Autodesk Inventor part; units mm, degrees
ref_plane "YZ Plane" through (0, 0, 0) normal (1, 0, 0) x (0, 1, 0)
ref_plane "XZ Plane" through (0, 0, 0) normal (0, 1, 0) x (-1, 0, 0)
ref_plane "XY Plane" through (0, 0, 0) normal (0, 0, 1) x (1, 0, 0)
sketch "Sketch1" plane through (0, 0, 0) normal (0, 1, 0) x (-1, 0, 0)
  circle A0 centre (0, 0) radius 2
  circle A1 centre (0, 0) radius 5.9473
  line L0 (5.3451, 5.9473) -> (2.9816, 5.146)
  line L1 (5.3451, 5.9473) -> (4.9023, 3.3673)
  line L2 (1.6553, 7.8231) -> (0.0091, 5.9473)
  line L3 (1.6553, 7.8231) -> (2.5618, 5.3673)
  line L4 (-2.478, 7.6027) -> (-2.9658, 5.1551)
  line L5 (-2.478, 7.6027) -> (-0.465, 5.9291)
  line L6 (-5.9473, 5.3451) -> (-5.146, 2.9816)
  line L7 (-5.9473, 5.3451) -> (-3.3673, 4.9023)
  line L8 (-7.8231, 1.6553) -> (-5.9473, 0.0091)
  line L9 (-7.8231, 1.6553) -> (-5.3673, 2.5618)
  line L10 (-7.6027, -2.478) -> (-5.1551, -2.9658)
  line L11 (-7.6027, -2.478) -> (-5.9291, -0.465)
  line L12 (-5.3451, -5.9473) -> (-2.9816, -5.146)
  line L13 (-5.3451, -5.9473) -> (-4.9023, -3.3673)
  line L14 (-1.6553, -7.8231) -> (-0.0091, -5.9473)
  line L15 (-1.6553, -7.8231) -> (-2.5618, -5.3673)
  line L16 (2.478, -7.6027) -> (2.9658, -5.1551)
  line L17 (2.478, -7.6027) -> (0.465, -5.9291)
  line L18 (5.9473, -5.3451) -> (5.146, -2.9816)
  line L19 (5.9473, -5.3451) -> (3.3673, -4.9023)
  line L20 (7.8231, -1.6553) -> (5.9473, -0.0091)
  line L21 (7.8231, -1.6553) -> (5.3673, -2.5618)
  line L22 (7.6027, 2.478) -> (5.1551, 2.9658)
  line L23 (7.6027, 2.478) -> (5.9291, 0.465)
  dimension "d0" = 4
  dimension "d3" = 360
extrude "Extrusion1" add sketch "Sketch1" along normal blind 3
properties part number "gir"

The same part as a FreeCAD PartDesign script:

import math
import FreeCAD as App
import Part
import Sketcher
from FreeCAD import Vector
Q = App.Units.Quantity

doc = App.newDocument("Part")
body = doc.addObject("PartDesign::Body", "Body")

sketch1 = body.newObject("Sketcher::SketchObject", "Sketch")
sketch1.AttachmentSupport = (doc.getObject("XZ_Plane"), [""])
sketch1.MapMode = "FlatFace"
sketch1.addGeometry([
    Part.ArcOfCircle(Part.Circle(Vector(0, 0, 0), Vector(0, 0, 1), 5.95), math.radians(175.52), math.radians(180.09)),
    Part.LineSegment(Vector(-5.93, 0.47, 0), Vector(-7.6, 2.48, 0)),
    Part.LineSegment(Vector(-7.6, 2.48, 0), Vector(-5.16, 2.97, 0)),
    Part.ArcOfCircle(Part.Circle(Vector(0, 0, 0), Vector(0, 0, 1), 5.95), math.radians(145.52), math.radians(150.09)),
    Part.LineSegment(Vector(-4.9, 3.37, 0), Vector(-5.35, 5.95, 0)),
    Part.LineSegment(Vector(-5.35, 5.95, 0), Vector(-2.98, 5.15, 0)),
    Part.ArcOfCircle(Part.Circle(Vector(0, 0, 0), Vector(0, 0, 1), 5.95), math.radians(115.52), math.radians(120.09)),
    Part.LineSegment(Vector(-2.56, 5.37, 0), Vector(-1.66, 7.82, 0)),
    Part.LineSegment(Vector(-1.66, 7.82, 0), Vector(-0.01, 5.95, 0)),
    Part.ArcOfCircle(Part.Circle(Vector(0, 0, 0), Vector(0, 0, 1), 5.95), math.radians(85.52), math.radians(90.09)),
    Part.LineSegment(Vector(0.47, 5.93, 0), Vector(2.48, 7.6, 0)),
    Part.LineSegment(Vector(2.48, 7.6, 0), Vector(2.97, 5.16, 0)),
    Part.ArcOfCircle(Part.Circle(Vector(0, 0, 0), Vector(0, 0, 1), 5.95), math.radians(55.52), math.radians(60.09)),
    Part.LineSegment(Vector(3.37, 4.9, 0), Vector(5.95, 5.35, 0)),
    Part.LineSegment(Vector(5.95, 5.35, 0), Vector(5.15, 2.98, 0)),
    Part.ArcOfCircle(Part.Circle(Vector(0, 0, 0), Vector(0, 0, 1), 5.95), math.radians(25.52), math.radians(30.09)),
    Part.LineSegment(Vector(5.37, 2.56, 0), Vector(7.82, 1.66, 0)),
    Part.LineSegment(Vector(7.82, 1.66, 0), Vector(5.95, 0.01, 0)),
    Part.ArcOfCircle(Part.Circle(Vector(0, 0, 0), Vector(0, 0, 1), 5.95), math.radians(-4.48), math.radians(0.09)),
    Part.LineSegment(Vector(5.93, -0.47, 0), Vector(7.6, -2.48, 0)),
    Part.LineSegment(Vector(7.6, -2.48, 0), Vector(5.16, -2.97, 0)),
    Part.ArcOfCircle(Part.Circle(Vector(0, 0, 0), Vector(0, 0, 1), 5.95), math.radians(-34.48), math.radians(-29.91)),
    Part.LineSegment(Vector(4.9, -3.37, 0), Vector(5.35, -5.95, 0)),
    Part.LineSegment(Vector(5.35, -5.95, 0), Vector(2.98, -5.15, 0)),
    Part.ArcOfCircle(Part.Circle(Vector(0, 0, 0), Vector(0, 0, 1), 5.95), math.radians(-64.48), math.radians(-59.91)),
    Part.LineSegment(Vector(2.56, -5.37, 0), Vector(1.66, -7.82, 0)),
    Part.LineSegment(Vector(1.66, -7.82, 0), Vector(0.01, -5.95, 0)),
    Part.ArcOfCircle(Part.Circle(Vector(0, 0, 0), Vector(0, 0, 1), 5.95), math.radians(-94.48), math.radians(-89.91)),
    Part.LineSegment(Vector(-0.47, -5.93, 0), Vector(-2.48, -7.6, 0)),
    Part.LineSegment(Vector(-2.48, -7.6, 0), Vector(-2.97, -5.16, 0)),
    Part.ArcOfCircle(Part.Circle(Vector(0, 0, 0), Vector(0, 0, 1), 5.95), math.radians(-124.48), math.radians(-119.91)),
    Part.LineSegment(Vector(-3.37, -4.9, 0), Vector(-5.95, -5.35, 0)),
    Part.LineSegment(Vector(-5.95, -5.35, 0), Vector(-5.15, -2.98, 0)),
    Part.ArcOfCircle(Part.Circle(Vector(0, 0, 0), Vector(0, 0, 1), 5.95), math.radians(-154.48), math.radians(-149.91)),
    Part.LineSegment(Vector(-5.37, -2.56, 0), Vector(-7.82, -1.66, 0)),
    Part.LineSegment(Vector(-7.82, -1.66, 0), Vector(-5.95, -0.01, 0)),
    Part.Circle(Vector(0, 0, 0), Vector(0, 0, 1), 2),
], False)
sketch1.addConstraint([
    Sketcher.Constraint("Coincident", 0, 1, 1, 1),
    Sketcher.Constraint("Coincident", 1, 2, 2, 1),
    Sketcher.Constraint("Coincident", 2, 2, 3, 2),
    Sketcher.Constraint("Coincident", 3, 1, 4, 1),
    Sketcher.Constraint("Coincident", 4, 2, 5, 1),
    Sketcher.Constraint("Coincident", 5, 2, 6, 2),
    Sketcher.Constraint("Coincident", 6, 1, 7, 1),
    Sketcher.Constraint("Coincident", 7, 2, 8, 1),
    Sketcher.Constraint("Coincident", 8, 2, 9, 2),
    Sketcher.Constraint("Coincident", 9, 1, 10, 1),
    Sketcher.Constraint("Coincident", 10, 2, 11, 1),
    Sketcher.Constraint("Coincident", 11, 2, 12, 2),
    Sketcher.Constraint("Coincident", 12, 1, 13, 1),
    Sketcher.Constraint("Coincident", 13, 2, 14, 1),
    Sketcher.Constraint("Coincident", 14, 2, 15, 2),
    Sketcher.Constraint("Coincident", 15, 1, 16, 1),
    Sketcher.Constraint("Coincident", 16, 2, 17, 1),
    Sketcher.Constraint("Coincident", 17, 2, 18, 2),
    Sketcher.Constraint("Coincident", 18, 1, 19, 1),
    Sketcher.Constraint("Coincident", 19, 2, 20, 1),
    Sketcher.Constraint("Coincident", 20, 2, 21, 2),
    Sketcher.Constraint("Coincident", 21, 1, 22, 1),
    Sketcher.Constraint("Coincident", 22, 2, 23, 1),
    Sketcher.Constraint("Coincident", 23, 2, 24, 2),
    Sketcher.Constraint("Coincident", 24, 1, 25, 1),
    Sketcher.Constraint("Coincident", 25, 2, 26, 1),
    Sketcher.Constraint("Coincident", 26, 2, 27, 2),
    Sketcher.Constraint("Coincident", 27, 1, 28, 1),
    Sketcher.Constraint("Coincident", 28, 2, 29, 1),
    Sketcher.Constraint("Coincident", 29, 2, 30, 2),
    Sketcher.Constraint("Coincident", 30, 1, 31, 1),
    Sketcher.Constraint("Coincident", 31, 2, 32, 1),
    Sketcher.Constraint("Coincident", 32, 2, 33, 2),
    Sketcher.Constraint("Coincident", 33, 1, 34, 1),
    Sketcher.Constraint("Coincident", 34, 2, 35, 1),
    Sketcher.Constraint("Coincident", 35, 2, 0, 2),
    Sketcher.Constraint("Coincident", 0, 3, -1, 1),
    Sketcher.Constraint("Coincident", 3, 3, -1, 1),
    Sketcher.Constraint("Coincident", 6, 3, -1, 1),
    Sketcher.Constraint("Coincident", 9, 3, -1, 1),
    Sketcher.Constraint("Coincident", 12, 3, -1, 1),
    Sketcher.Constraint("Coincident", 15, 3, -1, 1),
    Sketcher.Constraint("Coincident", 18, 3, -1, 1),
    Sketcher.Constraint("Coincident", 21, 3, -1, 1),
    Sketcher.Constraint("Coincident", 24, 3, -1, 1),
    Sketcher.Constraint("Coincident", 27, 3, -1, 1),
    Sketcher.Constraint("Coincident", 30, 3, -1, 1),
    Sketcher.Constraint("Coincident", 33, 3, -1, 1),
    Sketcher.Constraint("Coincident", 36, 3, -1, 1),
    Sketcher.Constraint("Equal", 0, 3),
    Sketcher.Constraint("Equal", 3, 6),
    Sketcher.Constraint("Equal", 6, 9),
    Sketcher.Constraint("Equal", 9, 12),
    Sketcher.Constraint("Equal", 12, 15),
    Sketcher.Constraint("Equal", 15, 18),
    Sketcher.Constraint("Equal", 18, 21),
    Sketcher.Constraint("Equal", 21, 24),
    Sketcher.Constraint("Equal", 24, 27),
    Sketcher.Constraint("Equal", 27, 30),
    Sketcher.Constraint("Equal", 30, 33),
    Sketcher.Constraint("Symmetric", 1, 2, 19, 2, -1, 1),
    Sketcher.Constraint("Symmetric", 4, 2, 22, 2, -1, 1),
    Sketcher.Constraint("Symmetric", 7, 2, 25, 2, -1, 1),
    Sketcher.Constraint("Symmetric", 10, 2, 28, 2, -1, 1),
    Sketcher.Constraint("Symmetric", 13, 2, 31, 2, -1, 1),
    Sketcher.Constraint("Symmetric", 16, 2, 34, 2, -1, 1),
    Sketcher.Constraint("Perpendicular", 1, 10),
    Sketcher.Constraint("Perpendicular", 2, 11),
    Sketcher.Constraint("Perpendicular", 4, 13),
    Sketcher.Constraint("Perpendicular", 5, 14),
    Sketcher.Constraint("Perpendicular", 7, 16),
    Sketcher.Constraint("Perpendicular", 8, 17),
    Sketcher.Constraint("Perpendicular", 10, 19),
    Sketcher.Constraint("Perpendicular", 11, 20),
    Sketcher.Constraint("Perpendicular", 13, 22),
    Sketcher.Constraint("Perpendicular", 14, 23),
    Sketcher.Constraint("Perpendicular", 16, 25),
    Sketcher.Constraint("Perpendicular", 17, 26),
    Sketcher.Constraint("Perpendicular", 19, 28),
    Sketcher.Constraint("Perpendicular", 20, 29),
    Sketcher.Constraint("Perpendicular", 22, 31),
    Sketcher.Constraint("Perpendicular", 23, 32),
    Sketcher.Constraint("Perpendicular", 25, 34),
    Sketcher.Constraint("Perpendicular", 26, 35),
    Sketcher.Constraint("Horizontal", 4, 2, 8, 2),
    Sketcher.Constraint("Vertical", 13, 2, 17, 2),
    Sketcher.Constraint("Equal", 1, 4),
    Sketcher.Constraint("Equal", 2, 5),
    Sketcher.Constraint("Equal", 4, 7),
    Sketcher.Constraint("Equal", 5, 8),
    Sketcher.Constraint("Equal", 7, 10),
    Sketcher.Constraint("Equal", 8, 11),
    Sketcher.Constraint("Equal", 10, 13),
    Sketcher.Constraint("Equal", 13, 16),
    Sketcher.Constraint("Equal", 14, 17),
    Sketcher.Constraint("Diameter", 36, Q("4 mm")),
    Sketcher.Constraint("DistanceY", 3, 1, 6, 1, Q("2 mm")),
    Sketcher.Constraint("Angle", 1, Q("129.74 deg")),
    Sketcher.Constraint("Angle", 7, Q("69.7396 deg")),
    Sketcher.Constraint("Angle", 8, Q("-48.7298 deg")),
    Sketcher.Constraint("Radius", 0, Q("5.9473 mm")),
    Sketcher.Constraint("DistanceY", 3, 1, 4, 2, Q("2.58 mm")),
    Sketcher.Constraint("DistanceX", 4, 2, 2, 2, Q("0.19 mm")),
    Sketcher.Constraint("DistanceX", 4, 2, 9, 1, Q("5.81 mm")),
])
pad1 = body.newObject("PartDesign::Pad", "Pad")
pad1.Profile = sketch1
pad1.Length = 3
pad1.Reversed = True

doc.recompute()
